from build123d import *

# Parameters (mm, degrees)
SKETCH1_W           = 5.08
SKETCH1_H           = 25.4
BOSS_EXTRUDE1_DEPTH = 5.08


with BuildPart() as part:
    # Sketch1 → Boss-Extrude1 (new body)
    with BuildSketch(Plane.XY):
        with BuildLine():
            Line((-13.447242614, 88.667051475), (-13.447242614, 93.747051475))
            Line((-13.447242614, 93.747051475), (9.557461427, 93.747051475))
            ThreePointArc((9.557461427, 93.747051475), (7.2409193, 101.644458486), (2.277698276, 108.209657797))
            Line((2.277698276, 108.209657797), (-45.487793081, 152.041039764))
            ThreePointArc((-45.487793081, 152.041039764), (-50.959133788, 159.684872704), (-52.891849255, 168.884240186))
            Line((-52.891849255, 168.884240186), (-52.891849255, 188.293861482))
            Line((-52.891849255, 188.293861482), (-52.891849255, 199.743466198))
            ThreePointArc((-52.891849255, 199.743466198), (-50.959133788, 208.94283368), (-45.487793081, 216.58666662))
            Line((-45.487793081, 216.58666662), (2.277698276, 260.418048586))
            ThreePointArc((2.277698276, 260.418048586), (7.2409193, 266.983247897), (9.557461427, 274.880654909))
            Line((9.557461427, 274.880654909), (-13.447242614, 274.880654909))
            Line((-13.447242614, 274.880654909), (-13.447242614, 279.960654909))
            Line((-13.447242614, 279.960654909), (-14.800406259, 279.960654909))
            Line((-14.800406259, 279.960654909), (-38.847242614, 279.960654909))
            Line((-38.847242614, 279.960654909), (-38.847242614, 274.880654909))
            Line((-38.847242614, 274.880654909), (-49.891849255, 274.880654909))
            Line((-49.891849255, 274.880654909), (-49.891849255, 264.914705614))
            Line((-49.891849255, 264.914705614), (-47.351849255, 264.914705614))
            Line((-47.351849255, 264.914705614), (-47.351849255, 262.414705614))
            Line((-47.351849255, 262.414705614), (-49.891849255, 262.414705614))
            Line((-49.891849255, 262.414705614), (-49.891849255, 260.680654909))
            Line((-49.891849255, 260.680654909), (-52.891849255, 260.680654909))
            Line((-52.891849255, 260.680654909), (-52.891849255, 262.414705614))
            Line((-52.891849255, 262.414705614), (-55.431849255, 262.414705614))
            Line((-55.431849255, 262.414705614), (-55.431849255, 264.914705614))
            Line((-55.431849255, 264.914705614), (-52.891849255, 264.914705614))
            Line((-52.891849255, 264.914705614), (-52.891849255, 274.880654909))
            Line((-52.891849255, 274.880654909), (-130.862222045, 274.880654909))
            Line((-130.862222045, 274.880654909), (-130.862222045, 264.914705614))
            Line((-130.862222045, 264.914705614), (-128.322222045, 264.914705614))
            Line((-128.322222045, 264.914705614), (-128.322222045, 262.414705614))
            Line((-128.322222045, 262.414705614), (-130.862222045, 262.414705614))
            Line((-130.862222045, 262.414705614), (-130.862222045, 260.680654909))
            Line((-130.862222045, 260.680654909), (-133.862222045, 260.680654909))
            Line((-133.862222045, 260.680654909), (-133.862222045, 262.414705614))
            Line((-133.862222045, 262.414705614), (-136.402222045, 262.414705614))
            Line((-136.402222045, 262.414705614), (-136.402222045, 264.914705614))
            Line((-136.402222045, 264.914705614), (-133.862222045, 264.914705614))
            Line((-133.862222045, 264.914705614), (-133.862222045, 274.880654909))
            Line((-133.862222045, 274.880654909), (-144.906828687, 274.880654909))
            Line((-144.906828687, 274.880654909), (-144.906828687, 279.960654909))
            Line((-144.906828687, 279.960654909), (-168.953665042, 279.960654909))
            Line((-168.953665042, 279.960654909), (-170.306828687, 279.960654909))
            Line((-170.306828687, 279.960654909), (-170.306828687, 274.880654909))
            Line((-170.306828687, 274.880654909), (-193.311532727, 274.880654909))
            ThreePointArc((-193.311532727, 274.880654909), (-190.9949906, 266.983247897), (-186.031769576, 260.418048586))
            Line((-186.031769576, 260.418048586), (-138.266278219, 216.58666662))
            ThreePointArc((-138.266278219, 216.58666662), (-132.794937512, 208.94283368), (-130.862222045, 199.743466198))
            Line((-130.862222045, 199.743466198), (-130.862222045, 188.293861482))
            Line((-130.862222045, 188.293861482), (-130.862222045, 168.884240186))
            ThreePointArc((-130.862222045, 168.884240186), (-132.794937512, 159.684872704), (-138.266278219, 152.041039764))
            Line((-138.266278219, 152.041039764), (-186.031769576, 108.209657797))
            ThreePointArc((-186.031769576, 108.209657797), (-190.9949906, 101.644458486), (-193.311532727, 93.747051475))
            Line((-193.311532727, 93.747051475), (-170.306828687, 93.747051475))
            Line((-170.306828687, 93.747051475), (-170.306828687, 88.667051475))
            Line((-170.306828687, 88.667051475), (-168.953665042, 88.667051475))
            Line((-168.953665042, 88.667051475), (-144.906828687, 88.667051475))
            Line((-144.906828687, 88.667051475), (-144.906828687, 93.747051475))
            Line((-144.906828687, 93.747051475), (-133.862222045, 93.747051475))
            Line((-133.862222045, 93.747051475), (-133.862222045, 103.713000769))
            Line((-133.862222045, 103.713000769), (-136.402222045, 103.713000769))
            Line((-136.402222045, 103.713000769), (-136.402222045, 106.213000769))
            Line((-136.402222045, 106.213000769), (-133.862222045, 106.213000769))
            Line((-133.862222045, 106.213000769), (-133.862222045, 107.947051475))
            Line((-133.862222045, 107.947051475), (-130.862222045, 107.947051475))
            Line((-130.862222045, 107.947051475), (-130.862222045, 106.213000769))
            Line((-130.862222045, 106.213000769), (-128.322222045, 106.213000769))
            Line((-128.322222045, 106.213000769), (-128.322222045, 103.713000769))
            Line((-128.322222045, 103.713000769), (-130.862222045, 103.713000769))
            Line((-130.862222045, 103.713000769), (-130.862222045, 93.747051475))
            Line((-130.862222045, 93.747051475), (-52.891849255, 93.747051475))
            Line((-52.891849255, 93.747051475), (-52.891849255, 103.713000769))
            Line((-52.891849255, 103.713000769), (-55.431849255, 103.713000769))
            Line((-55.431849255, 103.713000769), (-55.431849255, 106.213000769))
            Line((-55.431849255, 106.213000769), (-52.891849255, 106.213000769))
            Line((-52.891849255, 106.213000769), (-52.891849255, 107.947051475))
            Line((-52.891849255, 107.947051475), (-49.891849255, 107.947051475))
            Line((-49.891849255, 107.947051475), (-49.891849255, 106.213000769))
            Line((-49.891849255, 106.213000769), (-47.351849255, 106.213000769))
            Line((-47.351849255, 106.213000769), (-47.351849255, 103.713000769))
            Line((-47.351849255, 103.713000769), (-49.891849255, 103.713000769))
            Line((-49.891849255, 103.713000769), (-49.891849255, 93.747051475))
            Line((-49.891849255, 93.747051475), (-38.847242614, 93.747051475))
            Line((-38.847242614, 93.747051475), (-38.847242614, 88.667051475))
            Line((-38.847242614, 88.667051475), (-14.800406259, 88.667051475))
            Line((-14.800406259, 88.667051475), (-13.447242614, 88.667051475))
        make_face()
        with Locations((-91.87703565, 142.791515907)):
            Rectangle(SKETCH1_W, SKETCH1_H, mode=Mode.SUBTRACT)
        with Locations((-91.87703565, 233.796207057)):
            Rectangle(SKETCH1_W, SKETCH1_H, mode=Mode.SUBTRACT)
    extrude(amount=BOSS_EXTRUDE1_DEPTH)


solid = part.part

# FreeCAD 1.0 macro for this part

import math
import FreeCAD as App
import Part
import Sketcher

V = App.Vector
Q = App.Units.Quantity


def add_polygon(sketch, points):
    """Adds a closed chain of lines whose ends are joined by coincident constraints."""
    first, n = sketch.GeometryCount, len(points)
    for a, b in zip(points, points[1:] + points[:1]):
        sketch.addGeometry(Part.LineSegment(App.Vector(*a, 0), App.Vector(*b, 0)), False)
    for i in range(n):
        sketch.addConstraint(Sketcher.Constraint("Coincident", first + i, 2, first + (i + 1) % n, 1))

doc = App.newDocument("Part")
body = doc.addObject("PartDesign::Body", "Body")

# Sketch on XY plane
sketch1 = body.newObject("Sketcher::SketchObject", "Sketch")
sketch1.AttachmentSupport = (doc.getObject("XY_Plane"), [""])
sketch1.MapMode = "FlatFace"
sketch1.addGeometry(Part.LineSegment(V(-13.447243, 88.667051, 0), V(-13.447243, 93.747051, 0)), False)  # 0
sketch1.addGeometry(Part.LineSegment(V(-13.447243, 93.747051, 0), V(9.557461, 93.747051, 0)), False)  # 1
sketch1.addGeometry(Part.ArcOfCircle(Part.Circle(V(-13.178246, 91.366457, 0), V(0, 0, 1), 22.86), math.radians(5.977504), math.radians(47.459357)), False)  # 2
sketch1.addGeometry(Part.LineSegment(V(2.277698, 108.209658, 0), V(-45.487793, 152.04104, 0)), False)  # 3
sketch1.addGeometry(Part.ArcOfCircle(Part.Circle(V(-30.031849, 168.88424, 0), V(0, 0, 1), 22.86), math.radians(-180), math.radians(-132.540643)), False)  # 4
sketch1.addGeometry(Part.LineSegment(V(-52.891849, 168.88424, 0), V(-52.891849, 199.743466, 0)), False)  # 5
sketch1.addGeometry(Part.ArcOfCircle(Part.Circle(V(-30.031849, 199.743466, 0), V(0, 0, 1), 22.86), math.radians(132.540643), math.radians(180)), False)  # 6
sketch1.addGeometry(Part.LineSegment(V(-45.487793, 216.586667, 0), V(2.277698, 260.418049, 0)), False)  # 7
sketch1.addGeometry(Part.ArcOfCircle(Part.Circle(V(-13.178246, 277.261249, 0), V(0, 0, 1), 22.86), math.radians(-47.459357), math.radians(-5.977504)), False)  # 8
sketch1.addGeometry(Part.LineSegment(V(9.557461, 274.880655, 0), V(-13.447243, 274.880655, 0)), False)  # 9
sketch1.addGeometry(Part.LineSegment(V(-13.447243, 274.880655, 0), V(-13.447243, 279.960655, 0)), False)  # 10
sketch1.addGeometry(Part.LineSegment(V(-13.447243, 279.960655, 0), V(-38.847243, 279.960655, 0)), False)  # 11
sketch1.addGeometry(Part.LineSegment(V(-38.847243, 279.960655, 0), V(-38.847243, 274.880655, 0)), False)  # 12
sketch1.addGeometry(Part.LineSegment(V(-38.847243, 274.880655, 0), V(-49.891849, 274.880655, 0)), False)  # 13
sketch1.addGeometry(Part.LineSegment(V(-49.891849, 274.880655, 0), V(-49.891849, 264.914706, 0)), False)  # 14
sketch1.addGeometry(Part.LineSegment(V(-49.891849, 264.914706, 0), V(-47.351849, 264.914706, 0)), False)  # 15
sketch1.addGeometry(Part.LineSegment(V(-47.351849, 264.914706, 0), V(-47.351849, 262.414706, 0)), False)  # 16
sketch1.addGeometry(Part.LineSegment(V(-47.351849, 262.414706, 0), V(-49.891849, 262.414706, 0)), False)  # 17
sketch1.addGeometry(Part.LineSegment(V(-49.891849, 262.414706, 0), V(-49.891849, 260.680655, 0)), False)  # 18
sketch1.addGeometry(Part.LineSegment(V(-49.891849, 260.680655, 0), V(-52.891849, 260.680655, 0)), False)  # 19
sketch1.addGeometry(Part.LineSegment(V(-52.891849, 260.680655, 0), V(-52.891849, 262.414706, 0)), False)  # 20
sketch1.addGeometry(Part.LineSegment(V(-52.891849, 262.414706, 0), V(-55.431849, 262.414706, 0)), False)  # 21
sketch1.addGeometry(Part.LineSegment(V(-55.431849, 262.414706, 0), V(-55.431849, 264.914706, 0)), False)  # 22
sketch1.addGeometry(Part.LineSegment(V(-55.431849, 264.914706, 0), V(-52.891849, 264.914706, 0)), False)  # 23
sketch1.addGeometry(Part.LineSegment(V(-52.891849, 264.914706, 0), V(-52.891849, 274.880655, 0)), False)  # 24
sketch1.addGeometry(Part.LineSegment(V(-52.891849, 274.880655, 0), V(-130.862222, 274.880655, 0)), False)  # 25
sketch1.addGeometry(Part.LineSegment(V(-130.862222, 274.880655, 0), V(-130.862222, 264.914706, 0)), False)  # 26
sketch1.addGeometry(Part.LineSegment(V(-130.862222, 264.914706, 0), V(-128.322222, 264.914706, 0)), False)  # 27
sketch1.addGeometry(Part.LineSegment(V(-128.322222, 264.914706, 0), V(-128.322222, 262.414706, 0)), False)  # 28
sketch1.addGeometry(Part.LineSegment(V(-128.322222, 262.414706, 0), V(-130.862222, 262.414706, 0)), False)  # 29
sketch1.addGeometry(Part.LineSegment(V(-130.862222, 262.414706, 0), V(-130.862222, 260.680655, 0)), False)  # 30
sketch1.addGeometry(Part.LineSegment(V(-130.862222, 260.680655, 0), V(-133.862222, 260.680655, 0)), False)  # 31
sketch1.addGeometry(Part.LineSegment(V(-133.862222, 260.680655, 0), V(-133.862222, 262.414706, 0)), False)  # 32
sketch1.addGeometry(Part.LineSegment(V(-133.862222, 262.414706, 0), V(-136.402222, 262.414706, 0)), False)  # 33
sketch1.addGeometry(Part.LineSegment(V(-136.402222, 262.414706, 0), V(-136.402222, 264.914706, 0)), False)  # 34
sketch1.addGeometry(Part.LineSegment(V(-136.402222, 264.914706, 0), V(-133.862222, 264.914706, 0)), False)  # 35
sketch1.addGeometry(Part.LineSegment(V(-133.862222, 264.914706, 0), V(-133.862222, 274.880655, 0)), False)  # 36
sketch1.addGeometry(Part.LineSegment(V(-133.862222, 274.880655, 0), V(-144.906829, 274.880655, 0)), False)  # 37
sketch1.addGeometry(Part.LineSegment(V(-144.906829, 274.880655, 0), V(-144.906829, 279.960655, 0)), False)  # 38
sketch1.addGeometry(Part.LineSegment(V(-144.906829, 279.960655, 0), V(-170.306829, 279.960655, 0)), False)  # 39
sketch1.addGeometry(Part.LineSegment(V(-170.306829, 279.960655, 0), V(-170.306829, 274.880655, 0)), False)  # 40
sketch1.addGeometry(Part.LineSegment(V(-170.306829, 274.880655, 0), V(-193.311533, 274.880655, 0)), False)  # 41
sketch1.addGeometry(Part.ArcOfCircle(Part.Circle(V(-170.575826, 277.261249, 0), V(0, 0, 1), 22.86), math.radians(-174.022496), math.radians(-132.540643)), False)  # 42
sketch1.addGeometry(Part.LineSegment(V(-186.03177, 260.418049, 0), V(-138.266278, 216.586667, 0)), False)  # 43
sketch1.addGeometry(Part.ArcOfCircle(Part.Circle(V(-153.722222, 199.743466, 0), V(0, 0, 1), 22.86), math.radians(0), math.radians(47.459357)), False)  # 44
sketch1.addGeometry(Part.LineSegment(V(-130.862222, 199.743466, 0), V(-130.862222, 168.88424, 0)), False)  # 45
sketch1.addGeometry(Part.ArcOfCircle(Part.Circle(V(-153.722222, 168.88424, 0), V(0, 0, 1), 22.86), math.radians(-47.459357), math.radians(0)), False)  # 46
sketch1.addGeometry(Part.LineSegment(V(-138.266278, 152.04104, 0), V(-186.03177, 108.209658, 0)), False)  # 47
sketch1.addGeometry(Part.ArcOfCircle(Part.Circle(V(-170.575826, 91.366457, 0), V(0, 0, 1), 22.86), math.radians(132.540643), math.radians(174.022496)), False)  # 48
sketch1.addGeometry(Part.LineSegment(V(-193.311533, 93.747051, 0), V(-170.306829, 93.747051, 0)), False)  # 49
sketch1.addGeometry(Part.LineSegment(V(-170.306829, 93.747051, 0), V(-170.306829, 88.667051, 0)), False)  # 50
sketch1.addGeometry(Part.LineSegment(V(-170.306829, 88.667051, 0), V(-144.906829, 88.667051, 0)), False)  # 51
sketch1.addGeometry(Part.LineSegment(V(-144.906829, 88.667051, 0), V(-144.906829, 93.747051, 0)), False)  # 52
sketch1.addGeometry(Part.LineSegment(V(-144.906829, 93.747051, 0), V(-133.862222, 93.747051, 0)), False)  # 53
sketch1.addGeometry(Part.LineSegment(V(-133.862222, 93.747051, 0), V(-133.862222, 103.713001, 0)), False)  # 54
sketch1.addGeometry(Part.LineSegment(V(-133.862222, 103.713001, 0), V(-136.402222, 103.713001, 0)), False)  # 55
sketch1.addGeometry(Part.LineSegment(V(-136.402222, 103.713001, 0), V(-136.402222, 106.213001, 0)), False)  # 56
sketch1.addGeometry(Part.LineSegment(V(-136.402222, 106.213001, 0), V(-133.862222, 106.213001, 0)), False)  # 57
sketch1.addGeometry(Part.LineSegment(V(-133.862222, 106.213001, 0), V(-133.862222, 107.947051, 0)), False)  # 58
sketch1.addGeometry(Part.LineSegment(V(-133.862222, 107.947051, 0), V(-130.862222, 107.947051, 0)), False)  # 59
sketch1.addGeometry(Part.LineSegment(V(-130.862222, 107.947051, 0), V(-130.862222, 106.213001, 0)), False)  # 60
sketch1.addGeometry(Part.LineSegment(V(-130.862222, 106.213001, 0), V(-128.322222, 106.213001, 0)), False)  # 61
sketch1.addGeometry(Part.LineSegment(V(-128.322222, 106.213001, 0), V(-128.322222, 103.713001, 0)), False)  # 62
sketch1.addGeometry(Part.LineSegment(V(-128.322222, 103.713001, 0), V(-130.862222, 103.713001, 0)), False)  # 63
sketch1.addGeometry(Part.LineSegment(V(-130.862222, 103.713001, 0), V(-130.862222, 93.747051, 0)), False)  # 64
sketch1.addGeometry(Part.LineSegment(V(-130.862222, 93.747051, 0), V(-52.891849, 93.747051, 0)), False)  # 65
sketch1.addGeometry(Part.LineSegment(V(-52.891849, 93.747051, 0), V(-52.891849, 103.713001, 0)), False)  # 66
sketch1.addGeometry(Part.LineSegment(V(-52.891849, 103.713001, 0), V(-55.431849, 103.713001, 0)), False)  # 67
sketch1.addGeometry(Part.LineSegment(V(-55.431849, 103.713001, 0), V(-55.431849, 106.213001, 0)), False)  # 68
sketch1.addGeometry(Part.LineSegment(V(-55.431849, 106.213001, 0), V(-52.891849, 106.213001, 0)), False)  # 69
sketch1.addGeometry(Part.LineSegment(V(-52.891849, 106.213001, 0), V(-52.891849, 107.947051, 0)), False)  # 70
sketch1.addGeometry(Part.LineSegment(V(-52.891849, 107.947051, 0), V(-49.891849, 107.947051, 0)), False)  # 71
sketch1.addGeometry(Part.LineSegment(V(-49.891849, 107.947051, 0), V(-49.891849, 106.213001, 0)), False)  # 72
sketch1.addGeometry(Part.LineSegment(V(-49.891849, 106.213001, 0), V(-47.351849, 106.213001, 0)), False)  # 73
sketch1.addGeometry(Part.LineSegment(V(-47.351849, 106.213001, 0), V(-47.351849, 103.713001, 0)), False)  # 74
sketch1.addGeometry(Part.LineSegment(V(-47.351849, 103.713001, 0), V(-49.891849, 103.713001, 0)), False)  # 75
sketch1.addGeometry(Part.LineSegment(V(-49.891849, 103.713001, 0), V(-49.891849, 93.747051, 0)), False)  # 76
sketch1.addGeometry(Part.LineSegment(V(-49.891849, 93.747051, 0), V(-38.847243, 93.747051, 0)), False)  # 77
sketch1.addGeometry(Part.LineSegment(V(-38.847243, 93.747051, 0), V(-38.847243, 88.667051, 0)), False)  # 78
sketch1.addGeometry(Part.LineSegment(V(-38.847243, 88.667051, 0), V(-13.447243, 88.667051, 0)), False)  # 79
add_polygon(sketch1, [(-89.337036, 130.091516), (-94.417036, 130.091516), (-94.417036, 155.491516), (-89.337036, 155.491516)])  # lines 80-83
add_polygon(sketch1, [(-89.337036, 221.096207), (-94.417036, 221.096207), (-94.417036, 246.496207), (-89.337036, 246.496207)])  # lines 84-87
sketch1.addConstraint(Sketcher.Constraint("Coincident", 0, 2, 1, 1))
sketch1.addConstraint(Sketcher.Constraint("Coincident", 1, 2, 2, 1))
sketch1.addConstraint(Sketcher.Constraint("Tangent", 2, 2, 3, 1))
sketch1.addConstraint(Sketcher.Constraint("Tangent", 3, 2, 4, 2))
sketch1.addConstraint(Sketcher.Constraint("Tangent", 4, 1, 5, 1))
sketch1.addConstraint(Sketcher.Constraint("Tangent", 5, 2, 6, 2))
sketch1.addConstraint(Sketcher.Constraint("Tangent", 6, 1, 7, 1))
sketch1.addConstraint(Sketcher.Constraint("Tangent", 7, 2, 8, 1))
sketch1.addConstraint(Sketcher.Constraint("Coincident", 8, 2, 9, 1))
sketch1.addConstraint(Sketcher.Constraint("Coincident", 9, 2, 10, 1))
sketch1.addConstraint(Sketcher.Constraint("Coincident", 10, 2, 11, 1))
sketch1.addConstraint(Sketcher.Constraint("Coincident", 11, 2, 12, 1))
sketch1.addConstraint(Sketcher.Constraint("Coincident", 12, 2, 13, 1))
sketch1.addConstraint(Sketcher.Constraint("Coincident", 13, 2, 14, 1))
sketch1.addConstraint(Sketcher.Constraint("Coincident", 14, 2, 15, 1))
sketch1.addConstraint(Sketcher.Constraint("Coincident", 15, 2, 16, 1))
sketch1.addConstraint(Sketcher.Constraint("Coincident", 16, 2, 17, 1))
sketch1.addConstraint(Sketcher.Constraint("Coincident", 17, 2, 18, 1))
sketch1.addConstraint(Sketcher.Constraint("Coincident", 18, 2, 19, 1))
sketch1.addConstraint(Sketcher.Constraint("Coincident", 19, 2, 20, 1))
sketch1.addConstraint(Sketcher.Constraint("Coincident", 20, 2, 21, 1))
sketch1.addConstraint(Sketcher.Constraint("Coincident", 21, 2, 22, 1))
sketch1.addConstraint(Sketcher.Constraint("Coincident", 22, 2, 23, 1))
sketch1.addConstraint(Sketcher.Constraint("Coincident", 23, 2, 24, 1))
sketch1.addConstraint(Sketcher.Constraint("Coincident", 24, 2, 25, 1))
sketch1.addConstraint(Sketcher.Constraint("Coincident", 25, 2, 26, 1))
sketch1.addConstraint(Sketcher.Constraint("Coincident", 26, 2, 27, 1))
sketch1.addConstraint(Sketcher.Constraint("Coincident", 27, 2, 28, 1))
sketch1.addConstraint(Sketcher.Constraint("Coincident", 28, 2, 29, 1))
sketch1.addConstraint(Sketcher.Constraint("Coincident", 29, 2, 30, 1))
sketch1.addConstraint(Sketcher.Constraint("Coincident", 30, 2, 31, 1))
sketch1.addConstraint(Sketcher.Constraint("Coincident", 31, 2, 32, 1))
sketch1.addConstraint(Sketcher.Constraint("Coincident", 32, 2, 33, 1))
sketch1.addConstraint(Sketcher.Constraint("Coincident", 33, 2, 34, 1))
sketch1.addConstraint(Sketcher.Constraint("Coincident", 34, 2, 35, 1))
sketch1.addConstraint(Sketcher.Constraint("Coincident", 35, 2, 36, 1))
sketch1.addConstraint(Sketcher.Constraint("Coincident", 36, 2, 37, 1))
sketch1.addConstraint(Sketcher.Constraint("Coincident", 37, 2, 38, 1))
sketch1.addConstraint(Sketcher.Constraint("Coincident", 38, 2, 39, 1))
sketch1.addConstraint(Sketcher.Constraint("Coincident", 39, 2, 40, 1))
sketch1.addConstraint(Sketcher.Constraint("Coincident", 40, 2, 41, 1))
sketch1.addConstraint(Sketcher.Constraint("Coincident", 41, 2, 42, 1))
sketch1.addConstraint(Sketcher.Constraint("Tangent", 42, 2, 43, 1))
sketch1.addConstraint(Sketcher.Constraint("Tangent", 43, 2, 44, 2))
sketch1.addConstraint(Sketcher.Constraint("Tangent", 44, 1, 45, 1))
sketch1.addConstraint(Sketcher.Constraint("Tangent", 45, 2, 46, 2))
sketch1.addConstraint(Sketcher.Constraint("Tangent", 46, 1, 47, 1))
sketch1.addConstraint(Sketcher.Constraint("Tangent", 47, 2, 48, 1))
sketch1.addConstraint(Sketcher.Constraint("Coincident", 48, 2, 49, 1))
sketch1.addConstraint(Sketcher.Constraint("Coincident", 49, 2, 50, 1))
sketch1.addConstraint(Sketcher.Constraint("Coincident", 50, 2, 51, 1))
sketch1.addConstraint(Sketcher.Constraint("Coincident", 51, 2, 52, 1))
sketch1.addConstraint(Sketcher.Constraint("Coincident", 52, 2, 53, 1))
sketch1.addConstraint(Sketcher.Constraint("Coincident", 53, 2, 54, 1))
sketch1.addConstraint(Sketcher.Constraint("Coincident", 54, 2, 55, 1))
sketch1.addConstraint(Sketcher.Constraint("Coincident", 55, 2, 56, 1))
sketch1.addConstraint(Sketcher.Constraint("Coincident", 56, 2, 57, 1))
sketch1.addConstraint(Sketcher.Constraint("Coincident", 57, 2, 58, 1))
sketch1.addConstraint(Sketcher.Constraint("Coincident", 58, 2, 59, 1))
sketch1.addConstraint(Sketcher.Constraint("Coincident", 59, 2, 60, 1))
sketch1.addConstraint(Sketcher.Constraint("Coincident", 60, 2, 61, 1))
sketch1.addConstraint(Sketcher.Constraint("Coincident", 61, 2, 62, 1))
sketch1.addConstraint(Sketcher.Constraint("Coincident", 62, 2, 63, 1))
sketch1.addConstraint(Sketcher.Constraint("Coincident", 63, 2, 64, 1))
sketch1.addConstraint(Sketcher.Constraint("Coincident", 64, 2, 65, 1))
sketch1.addConstraint(Sketcher.Constraint("Coincident", 65, 2, 66, 1))
sketch1.addConstraint(Sketcher.Constraint("Coincident", 66, 2, 67, 1))
sketch1.addConstraint(Sketcher.Constraint("Coincident", 67, 2, 68, 1))
sketch1.addConstraint(Sketcher.Constraint("Coincident", 68, 2, 69, 1))
sketch1.addConstraint(Sketcher.Constraint("Coincident", 69, 2, 70, 1))
sketch1.addConstraint(Sketcher.Constraint("Coincident", 70, 2, 71, 1))
sketch1.addConstraint(Sketcher.Constraint("Coincident", 71, 2, 72, 1))
sketch1.addConstraint(Sketcher.Constraint("Coincident", 72, 2, 73, 1))
sketch1.addConstraint(Sketcher.Constraint("Coincident", 73, 2, 74, 1))
sketch1.addConstraint(Sketcher.Constraint("Coincident", 74, 2, 75, 1))
sketch1.addConstraint(Sketcher.Constraint("Coincident", 75, 2, 76, 1))
sketch1.addConstraint(Sketcher.Constraint("Coincident", 76, 2, 77, 1))
sketch1.addConstraint(Sketcher.Constraint("Coincident", 77, 2, 78, 1))
sketch1.addConstraint(Sketcher.Constraint("Coincident", 78, 2, 79, 1))
sketch1.addConstraint(Sketcher.Constraint("Coincident", 79, 2, 0, 1))
sketch1.addConstraint(Sketcher.Constraint("Vertical", 0))
sketch1.addConstraint(Sketcher.Constraint("Horizontal", 1))
sketch1.addConstraint(Sketcher.Constraint("Vertical", 5))
sketch1.addConstraint(Sketcher.Constraint("Horizontal", 9))
sketch1.addConstraint(Sketcher.Constraint("Vertical", 10))
sketch1.addConstraint(Sketcher.Constraint("Horizontal", 11))
sketch1.addConstraint(Sketcher.Constraint("Vertical", 12))
sketch1.addConstraint(Sketcher.Constraint("Horizontal", 13))
sketch1.addConstraint(Sketcher.Constraint("Vertical", 14))
sketch1.addConstraint(Sketcher.Constraint("Horizontal", 15))
sketch1.addConstraint(Sketcher.Constraint("Vertical", 16))
sketch1.addConstraint(Sketcher.Constraint("Horizontal", 17))
sketch1.addConstraint(Sketcher.Constraint("Vertical", 18))
sketch1.addConstraint(Sketcher.Constraint("Horizontal", 19))
sketch1.addConstraint(Sketcher.Constraint("Vertical", 20))
sketch1.addConstraint(Sketcher.Constraint("Horizontal", 21))
sketch1.addConstraint(Sketcher.Constraint("Vertical", 22))
sketch1.addConstraint(Sketcher.Constraint("Horizontal", 23))
sketch1.addConstraint(Sketcher.Constraint("Vertical", 24))
sketch1.addConstraint(Sketcher.Constraint("Horizontal", 25))
sketch1.addConstraint(Sketcher.Constraint("Vertical", 26))
sketch1.addConstraint(Sketcher.Constraint("Horizontal", 27))
sketch1.addConstraint(Sketcher.Constraint("Vertical", 28))
sketch1.addConstraint(Sketcher.Constraint("Horizontal", 29))
sketch1.addConstraint(Sketcher.Constraint("Vertical", 30))
sketch1.addConstraint(Sketcher.Constraint("Horizontal", 31))
sketch1.addConstraint(Sketcher.Constraint("Vertical", 32))
sketch1.addConstraint(Sketcher.Constraint("Horizontal", 33))
sketch1.addConstraint(Sketcher.Constraint("Vertical", 34))
sketch1.addConstraint(Sketcher.Constraint("Horizontal", 35))
sketch1.addConstraint(Sketcher.Constraint("Vertical", 36))
sketch1.addConstraint(Sketcher.Constraint("Horizontal", 37))
sketch1.addConstraint(Sketcher.Constraint("Vertical", 38))
sketch1.addConstraint(Sketcher.Constraint("Horizontal", 39))
sketch1.addConstraint(Sketcher.Constraint("Vertical", 40))
sketch1.addConstraint(Sketcher.Constraint("Horizontal", 41))
sketch1.addConstraint(Sketcher.Constraint("Vertical", 45))
sketch1.addConstraint(Sketcher.Constraint("Horizontal", 49))
sketch1.addConstraint(Sketcher.Constraint("Vertical", 50))
sketch1.addConstraint(Sketcher.Constraint("Horizontal", 51))
sketch1.addConstraint(Sketcher.Constraint("Vertical", 52))
sketch1.addConstraint(Sketcher.Constraint("Horizontal", 53))
sketch1.addConstraint(Sketcher.Constraint("Vertical", 54))
sketch1.addConstraint(Sketcher.Constraint("Horizontal", 55))
sketch1.addConstraint(Sketcher.Constraint("Vertical", 56))
sketch1.addConstraint(Sketcher.Constraint("Horizontal", 57))
sketch1.addConstraint(Sketcher.Constraint("Vertical", 58))
sketch1.addConstraint(Sketcher.Constraint("Horizontal", 59))
sketch1.addConstraint(Sketcher.Constraint("Vertical", 60))
sketch1.addConstraint(Sketcher.Constraint("Horizontal", 61))
sketch1.addConstraint(Sketcher.Constraint("Vertical", 62))
sketch1.addConstraint(Sketcher.Constraint("Horizontal", 63))
sketch1.addConstraint(Sketcher.Constraint("Vertical", 64))
sketch1.addConstraint(Sketcher.Constraint("Horizontal", 65))
sketch1.addConstraint(Sketcher.Constraint("Vertical", 66))
sketch1.addConstraint(Sketcher.Constraint("Horizontal", 67))
sketch1.addConstraint(Sketcher.Constraint("Vertical", 68))
sketch1.addConstraint(Sketcher.Constraint("Horizontal", 69))
sketch1.addConstraint(Sketcher.Constraint("Vertical", 70))
sketch1.addConstraint(Sketcher.Constraint("Horizontal", 71))
sketch1.addConstraint(Sketcher.Constraint("Vertical", 72))
sketch1.addConstraint(Sketcher.Constraint("Horizontal", 73))
sketch1.addConstraint(Sketcher.Constraint("Vertical", 74))
sketch1.addConstraint(Sketcher.Constraint("Horizontal", 75))
sketch1.addConstraint(Sketcher.Constraint("Vertical", 76))
sketch1.addConstraint(Sketcher.Constraint("Horizontal", 77))
sketch1.addConstraint(Sketcher.Constraint("Vertical", 78))
sketch1.addConstraint(Sketcher.Constraint("Horizontal", 79))
sketch1.addConstraint(Sketcher.Constraint("Horizontal", 80))
sketch1.addConstraint(Sketcher.Constraint("Vertical", 81))
sketch1.addConstraint(Sketcher.Constraint("Horizontal", 82))
sketch1.addConstraint(Sketcher.Constraint("Vertical", 83))
sketch1.addConstraint(Sketcher.Constraint("Horizontal", 84))
sketch1.addConstraint(Sketcher.Constraint("Vertical", 85))
sketch1.addConstraint(Sketcher.Constraint("Horizontal", 86))
sketch1.addConstraint(Sketcher.Constraint("Vertical", 87))
sketch1.addConstraint(Sketcher.Constraint("Equal", 2, 4))
sketch1.addConstraint(Sketcher.Constraint("Equal", 4, 6))
sketch1.addConstraint(Sketcher.Constraint("Equal", 6, 8))
sketch1.addConstraint(Sketcher.Constraint("Equal", 8, 42))
sketch1.addConstraint(Sketcher.Constraint("Equal", 42, 44))
sketch1.addConstraint(Sketcher.Constraint("Equal", 44, 46))
sketch1.addConstraint(Sketcher.Constraint("Equal", 46, 48))
sketch1.addConstraint(Sketcher.Constraint("Parallel", 3, 43))
sketch1.addConstraint(Sketcher.Constraint("Parallel", 7, 47))
sketch1.addConstraint(Sketcher.Constraint("Horizontal", 8, 3, 42, 3))
sketch1.addConstraint(Sketcher.Constraint("Horizontal", 6, 3, 44, 3))
sketch1.addConstraint(Sketcher.Constraint("Horizontal", 4, 3, 46, 3))
sketch1.addConstraint(Sketcher.Constraint("Horizontal", 2, 3, 48, 3))
sketch1.addConstraint(Sketcher.Constraint("Horizontal", 9, 2, 12, 2))
sketch1.addConstraint(Sketcher.Constraint("Horizontal", 17, 2, 20, 2))
sketch1.addConstraint(Sketcher.Constraint("Horizontal", 15, 2, 22, 2))
sketch1.addConstraint(Sketcher.Constraint("Horizontal", 13, 2, 24, 2))
sketch1.addConstraint(Sketcher.Constraint("Horizontal", 23, 2, 26, 2))
sketch1.addConstraint(Sketcher.Constraint("Horizontal", 21, 2, 28, 2))
sketch1.addConstraint(Sketcher.Constraint("Horizontal", 19, 2, 30, 2))
sketch1.addConstraint(Sketcher.Constraint("Horizontal", 29, 2, 32, 2))
sketch1.addConstraint(Sketcher.Constraint("Horizontal", 27, 2, 34, 2))
sketch1.addConstraint(Sketcher.Constraint("Horizontal", 25, 2, 36, 2))
sketch1.addConstraint(Sketcher.Constraint("Horizontal", 11, 2, 38, 2))
sketch1.addConstraint(Sketcher.Constraint("Horizontal", 37, 2, 40, 2))
sketch1.addConstraint(Sketcher.Constraint("Horizontal", 7, 2, 42, 2))
sketch1.addConstraint(Sketcher.Constraint("Horizontal", 1, 2, 48, 2))
sketch1.addConstraint(Sketcher.Constraint("Horizontal", 49, 2, 52, 2))
sketch1.addConstraint(Sketcher.Constraint("Horizontal", 57, 2, 60, 2))
sketch1.addConstraint(Sketcher.Constraint("Horizontal", 55, 2, 62, 2))
sketch1.addConstraint(Sketcher.Constraint("Horizontal", 53, 2, 64, 2))
sketch1.addConstraint(Sketcher.Constraint("Horizontal", 63, 2, 66, 2))
sketch1.addConstraint(Sketcher.Constraint("Horizontal", 61, 2, 68, 2))
sketch1.addConstraint(Sketcher.Constraint("Horizontal", 59, 2, 70, 2))
sketch1.addConstraint(Sketcher.Constraint("Horizontal", 69, 2, 72, 2))
sketch1.addConstraint(Sketcher.Constraint("Horizontal", 67, 2, 74, 2))
sketch1.addConstraint(Sketcher.Constraint("Horizontal", 65, 2, 76, 2))
sketch1.addConstraint(Sketcher.Constraint("Horizontal", 51, 2, 78, 2))
sketch1.addConstraint(Sketcher.Constraint("Vertical", 2, 3, 8, 3))
sketch1.addConstraint(Sketcher.Constraint("Vertical", 1, 2, 8, 2))
sketch1.addConstraint(Sketcher.Constraint("Vertical", 0, 2, 9, 2))
sketch1.addConstraint(Sketcher.Constraint("Vertical", 14, 2, 17, 2))
sketch1.addConstraint(Sketcher.Constraint("Vertical", 5, 2, 19, 2))
sketch1.addConstraint(Sketcher.Constraint("Vertical", 20, 2, 23, 2))
sketch1.addConstraint(Sketcher.Constraint("Vertical", 26, 2, 29, 2))
sketch1.addConstraint(Sketcher.Constraint("Vertical", 32, 2, 35, 2))
sketch1.addConstraint(Sketcher.Constraint("Vertical", 30, 2, 44, 1))
sketch1.addConstraint(Sketcher.Constraint("Vertical", 40, 2, 49, 2))
sketch1.addConstraint(Sketcher.Constraint("Vertical", 38, 2, 51, 2))
sketch1.addConstraint(Sketcher.Constraint("Vertical", 36, 2, 53, 2))
sketch1.addConstraint(Sketcher.Constraint("Vertical", 34, 2, 55, 2))
sketch1.addConstraint(Sketcher.Constraint("Vertical", 54, 2, 57, 2))
sketch1.addConstraint(Sketcher.Constraint("Vertical", 45, 2, 59, 2))
sketch1.addConstraint(Sketcher.Constraint("Vertical", 28, 2, 61, 2))
sketch1.addConstraint(Sketcher.Constraint("Vertical", 60, 2, 63, 2))
sketch1.addConstraint(Sketcher.Constraint("Vertical", 24, 2, 65, 2))
sketch1.addConstraint(Sketcher.Constraint("Vertical", 22, 2, 67, 2))
sketch1.addConstraint(Sketcher.Constraint("Vertical", 66, 2, 69, 2))
sketch1.addConstraint(Sketcher.Constraint("Vertical", 18, 2, 71, 2))
sketch1.addConstraint(Sketcher.Constraint("Vertical", 16, 2, 73, 2))
sketch1.addConstraint(Sketcher.Constraint("Vertical", 72, 2, 75, 2))
sketch1.addConstraint(Sketcher.Constraint("Vertical", 12, 2, 77, 2))
sketch1.addConstraint(Sketcher.Constraint("Vertical", 81, 2, 84, 2))
sketch1.addConstraint(Sketcher.Constraint("Vertical", 83, 2, 86, 2))
sketch1.addConstraint(Sketcher.Constraint("Equal", 17, 21))
sketch1.addConstraint(Sketcher.Constraint("Equal", 23, 27))
sketch1.addConstraint(Sketcher.Constraint("Equal", 19, 31))
sketch1.addConstraint(Sketcher.Constraint("Equal", 29, 33))
sketch1.addConstraint(Sketcher.Constraint("Equal", 13, 37))
sketch1.addConstraint(Sketcher.Constraint("Equal", 11, 39))
sketch1.addConstraint(Sketcher.Constraint("Equal", 86, 0))
sketch1.addConstraint(Sketcher.Constraint("Equal", 0, 10))
sketch1.addConstraint(Sketcher.Constraint("Equal", 36, 54))
sketch1.addConstraint(Sketcher.Constraint("Equal", 34, 56))
sketch1.addConstraint(Sketcher.Constraint("Equal", 32, 58))
sketch1.addConstraint(Sketcher.Constraint("Equal", 79, 81))
sketch1.addConstraint(Sketcher.Constraint("Equal", 83, 85))
sketch1.addConstraint(Sketcher.Constraint("Radius", 2, Q("0.9 in")))
sketch1.addConstraint(Sketcher.Constraint("DistanceX", 11, 2, 11, 1, Q("1 in")))
sketch1.addConstraint(Sketcher.Constraint("DistanceX", 15, 1, 15, 2, Q("0.1 in")))
sketch1.addConstraint(Sketcher.Constraint("DistanceX", 80, 2, 80, 1, Q("0.2 in")))
sketch1.addConstraint(Sketcher.Constraint("DistanceX", 19, 2, 19, 1, 3.0))
sketch1.addConstraint(Sketcher.Constraint("DistanceY", 16, 2, 16, 1, 2.5))
sketch1.addConstraint(Sketcher.Constraint("DistanceY", 14, 2, 14, 1, 9.965949))
sketch1.addConstraint(Sketcher.Constraint("DistanceY", 18, 2, 18, 1, 1.734051))
sketch1.addConstraint(Sketcher.Constraint("DistanceX", -1, 1, 2, 2, 2.277698))
sketch1.addConstraint(Sketcher.Constraint("DistanceY", -1, 1, 54, 2, 103.713001))
sketch1.addConstraint(Sketcher.Constraint("DistanceX", 1, 1, 1, 2, 23.004704))
sketch1.addConstraint(Sketcher.Constraint("DistanceX", 13, 2, 13, 1, 11.044607))
sketch1.addConstraint(Sketcher.Constraint("DistanceX", 25, 2, 25, 1, 77.970373))
sketch1.addConstraint(Sketcher.Constraint("DistanceY", 5, 1, 5, 2, 30.859226))
sketch1.addConstraint(Sketcher.Constraint("DistanceX", 4, 3, -1, 1, 30.031849))
sketch1.addConstraint(Sketcher.Constraint("DistanceY", -1, 1, 4, 3, 168.88424))
sketch1.addConstraint(Sketcher.Constraint("DistanceX", 80, 2, -1, 1, 94.417036))
sketch1.addConstraint(Sketcher.Constraint("DistanceY", -1, 1, 80, 2, 130.091516))
sketch1.addConstraint(Sketcher.Constraint("DistanceY", -1, 1, 84, 2, 221.096207))
pad1 = body.newObject("PartDesign::Pad", "Pad")
pad1.Profile = sketch1
pad1.Length = Q("0.2 in")

doc.recompute()
